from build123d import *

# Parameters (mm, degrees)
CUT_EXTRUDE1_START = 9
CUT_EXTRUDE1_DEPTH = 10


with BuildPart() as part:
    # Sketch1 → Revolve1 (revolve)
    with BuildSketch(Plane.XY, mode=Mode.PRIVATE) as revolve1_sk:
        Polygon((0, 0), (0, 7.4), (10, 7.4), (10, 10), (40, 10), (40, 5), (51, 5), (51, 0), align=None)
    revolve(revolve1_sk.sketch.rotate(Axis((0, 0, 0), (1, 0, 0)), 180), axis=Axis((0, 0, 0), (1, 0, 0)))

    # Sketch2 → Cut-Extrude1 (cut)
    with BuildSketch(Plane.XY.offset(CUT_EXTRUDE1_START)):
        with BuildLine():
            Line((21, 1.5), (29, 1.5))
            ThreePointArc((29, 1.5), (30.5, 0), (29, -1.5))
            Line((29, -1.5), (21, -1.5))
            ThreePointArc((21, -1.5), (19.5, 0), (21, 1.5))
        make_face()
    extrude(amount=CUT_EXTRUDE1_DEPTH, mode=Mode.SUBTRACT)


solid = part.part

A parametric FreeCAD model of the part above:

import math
import FreeCAD as App
import Part
import Sketcher

V = App.Vector


def add_polygon(sketch, points):
    """Adds a closed chain of lines whose ends are joined by coincident constraints."""
    first, n = sketch.GeometryCount, len(points)
    for a, b in zip(points, points[1:] + points[:1]):
        sketch.addGeometry(Part.LineSegment(App.Vector(*a, 0), App.Vector(*b, 0)), False)
    for i in range(n):
        sketch.addConstraint(Sketcher.Constraint("Coincident", first + i, 2, first + (i + 1) % n, 1))

doc = App.newDocument("Part")
body = doc.addObject("PartDesign::Body", "Body")

sketch1 = doc.addObject("Sketcher::SketchObject", "Sketch")
body.addObject(sketch1)
sketch1.AttachmentSupport = (doc.XY_Plane, [""])
sketch1.MapMode = "FlatFace"
add_polygon(sketch1, [(0, 7.4), (0, 0), (51, 0), (51, 5), (40, 5), (40, 10), (10, 10), (10, 7.4)])
sketch1.addConstraint(Sketcher.Constraint("Vertical", 0))
sketch1.addConstraint(Sketcher.Constraint("Horizontal", 1))
sketch1.addConstraint(Sketcher.Constraint("Vertical", 2))
sketch1.addConstraint(Sketcher.Constraint("Horizontal", 3))
sketch1.addConstraint(Sketcher.Constraint("Vertical", 4))
sketch1.addConstraint(Sketcher.Constraint("Horizontal", 5))
sketch1.addConstraint(Sketcher.Constraint("Vertical", 6))
sketch1.addConstraint(Sketcher.Constraint("Horizontal", 7))
sketch1.addConstraint(Sketcher.Constraint("Coincident", 0, 2, -1, 1))
sketch1.addConstraint(Sketcher.Constraint("Equal", 2, 4))
sketch1.addConstraint(Sketcher.Constraint("DistanceX", 1, 1, 1, 2, 51.0))
sketch1.addConstraint(Sketcher.Constraint("DistanceX", 3, 2, 3, 1, 11.0))
sketch1.addConstraint(Sketcher.Constraint("DistanceX", 5, 2, 5, 1, 30.0))
sketch1.addConstraint(Sketcher.Constraint("DistanceY", 2, 1, 2, 2, 5.0))
sketch1.addConstraint(Sketcher.Constraint("DistanceY", 0, 2, 0, 1, 7.4))
revolution = doc.addObject("PartDesign::Revolution", "Revolution")
body.addObject(revolution)
revolution.Profile = sketch1
revolution.ReferenceAxis = (sketch1, ["H_Axis"])
revolution.Angle = 360

sketch2 = doc.addObject("Sketcher::SketchObject", "Sketch001")
body.addObject(sketch2)
sketch2.AttachmentSupport = (doc.XY_Plane, [""])
sketch2.MapMode = "FlatFace"
sketch2.AttachmentOffset = App.Placement(V(0, 0, 9), App.Rotation())
sketch2.addGeometry(Part.LineSegment(V(29, 1.5, 0), V(21, 1.5, 0)), False)
sketch2.addGeometry(Part.ArcOfCircle(Part.Circle(V(21, 0, 0), V(0, 0, 1), 1.5), math.radians(90), math.radians(270)), False)
sketch2.addGeometry(Part.LineSegment(V(21, -1.5, 0), V(29, -1.5, 0)), False)
sketch2.addGeometry(Part.ArcOfCircle(Part.Circle(V(29, 0, 0), V(0, 0, 1), 1.5), math.radians(-90), math.radians(90)), False)
sketch2.addConstraint(Sketcher.Constraint("Tangent", 0, 2, 1, 1))
sketch2.addConstraint(Sketcher.Constraint("Tangent", 1, 2, 2, 1))
sketch2.addConstraint(Sketcher.Constraint("Tangent", 2, 2, 3, 1))
sketch2.addConstraint(Sketcher.Constraint("Tangent", 3, 2, 0, 1))
sketch2.addConstraint(Sketcher.Constraint("Horizontal", 0))
sketch2.addConstraint(Sketcher.Constraint("Horizontal", 2))
sketch2.addConstraint(Sketcher.Constraint("PointOnObject", 1, 3, -1))
sketch2.addConstraint(Sketcher.Constraint("Radius", 1, 1.5))
sketch2.addConstraint(Sketcher.Constraint("DistanceX", 0, 2, 0, 1, 8.0))
sketch2.addConstraint(Sketcher.Constraint("DistanceX", -1, 1, 1, 3, 21.0))
pocket1 = doc.addObject("PartDesign::Pocket", "Pocket")
body.addObject(pocket1)
pocket1.Profile = sketch2
pocket1.Length = 10
pocket1.Reversed = True

doc.recompute()
